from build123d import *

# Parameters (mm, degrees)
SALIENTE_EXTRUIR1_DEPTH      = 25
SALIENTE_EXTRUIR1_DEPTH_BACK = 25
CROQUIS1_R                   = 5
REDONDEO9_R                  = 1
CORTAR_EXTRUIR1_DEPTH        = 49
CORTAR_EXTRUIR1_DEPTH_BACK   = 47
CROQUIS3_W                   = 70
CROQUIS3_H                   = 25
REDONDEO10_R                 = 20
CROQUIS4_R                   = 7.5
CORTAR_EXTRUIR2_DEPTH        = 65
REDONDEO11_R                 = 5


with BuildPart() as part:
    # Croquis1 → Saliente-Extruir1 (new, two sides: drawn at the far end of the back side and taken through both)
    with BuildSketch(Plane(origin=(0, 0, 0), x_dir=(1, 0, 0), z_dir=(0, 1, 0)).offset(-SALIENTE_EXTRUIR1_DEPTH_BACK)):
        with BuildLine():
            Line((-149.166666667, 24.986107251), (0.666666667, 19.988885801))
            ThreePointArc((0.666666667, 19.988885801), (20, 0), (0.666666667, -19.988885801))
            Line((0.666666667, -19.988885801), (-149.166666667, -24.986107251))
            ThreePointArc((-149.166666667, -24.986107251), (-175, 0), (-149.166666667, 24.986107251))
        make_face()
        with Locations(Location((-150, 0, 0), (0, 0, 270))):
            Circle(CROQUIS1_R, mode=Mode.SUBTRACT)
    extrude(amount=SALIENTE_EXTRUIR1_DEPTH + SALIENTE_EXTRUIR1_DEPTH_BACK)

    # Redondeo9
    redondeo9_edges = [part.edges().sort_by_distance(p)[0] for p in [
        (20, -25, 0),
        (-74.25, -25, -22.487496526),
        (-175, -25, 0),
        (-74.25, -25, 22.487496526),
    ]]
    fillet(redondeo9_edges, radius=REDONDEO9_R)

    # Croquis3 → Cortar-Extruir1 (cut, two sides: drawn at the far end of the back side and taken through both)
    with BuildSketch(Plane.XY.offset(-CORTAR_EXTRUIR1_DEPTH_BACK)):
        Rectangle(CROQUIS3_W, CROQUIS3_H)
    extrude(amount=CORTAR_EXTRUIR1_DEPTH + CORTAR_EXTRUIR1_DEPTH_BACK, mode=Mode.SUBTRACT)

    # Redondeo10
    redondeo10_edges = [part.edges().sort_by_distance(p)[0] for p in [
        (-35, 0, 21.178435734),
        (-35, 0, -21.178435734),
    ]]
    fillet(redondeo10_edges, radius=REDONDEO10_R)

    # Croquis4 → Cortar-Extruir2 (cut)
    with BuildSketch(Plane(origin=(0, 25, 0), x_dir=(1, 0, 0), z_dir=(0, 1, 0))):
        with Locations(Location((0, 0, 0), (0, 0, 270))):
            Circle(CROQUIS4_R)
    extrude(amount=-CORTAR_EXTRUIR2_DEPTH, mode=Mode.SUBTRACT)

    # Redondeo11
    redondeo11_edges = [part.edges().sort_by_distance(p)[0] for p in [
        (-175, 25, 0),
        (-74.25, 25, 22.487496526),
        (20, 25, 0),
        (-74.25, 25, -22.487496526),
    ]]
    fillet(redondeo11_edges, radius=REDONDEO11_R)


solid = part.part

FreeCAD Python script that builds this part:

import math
import FreeCAD as App
import Part
import Sketcher


def edges_at(feature, points):
    """Names of the edges that pass closest to the given points."""
    edges = feature.Shape.Edges
    near = lambda p: min(range(len(edges)), key=lambda i: edges[i].distToShape(Part.Vertex(*p))[0])
    return sorted({f"Edge{near(p) + 1}" for p in points})


def add_polygon(sketch, points):
    """Adds a closed chain of lines whose ends are joined by coincident constraints."""
    first, n = sketch.GeometryCount, len(points)
    for a, b in zip(points, points[1:] + points[:1]):
        sketch.addGeometry(Part.LineSegment(App.Vector(*a, 0), App.Vector(*b, 0)), False)
    for i in range(n):
        sketch.addConstraint(Sketcher.Constraint("Coincident", first + i, 2, first + (i + 1) % n, 1))

doc = App.newDocument("Part")
body = doc.addObject("PartDesign::Body", "Body")

# Sketch on XZ plane
sketch1 = doc.addObject("Sketcher::SketchObject", "Sketch")
body.addObject(sketch1)
sketch1.AttachmentSupport = (doc.XZ_Plane, [""])
sketch1.MapMode = "FlatFace"
sketch1.addGeometry([
    Part.LineSegment(App.Vector(1, -20, 0), App.Vector(-149, -25, 0)),  # 0
    Part.ArcOfCircle(Part.Circle(App.Vector(-150, 0, 0), App.Vector(0, 0, 1), 25), math.radians(88), math.radians(272)),  # 1
    Part.LineSegment(App.Vector(-149, 25, 0), App.Vector(1, 20, 0)),  # 2
    Part.ArcOfCircle(Part.Circle(App.Vector(0, 0, 0), App.Vector(0, 0, 1), 20), math.radians(-88), math.radians(88)),  # 3
    Part.Circle(App.Vector(-150, 0, 0), App.Vector(0, 0, 1), 5),  # 4
], False)
sketch1.addConstraint([
    Sketcher.Constraint("Tangent", 0, 2, 1, 2),
    Sketcher.Constraint("Tangent", 1, 1, 2, 1),
    Sketcher.Constraint("Tangent", 2, 2, 3, 2),
    Sketcher.Constraint("Tangent", 3, 1, 0, 1),
    Sketcher.Constraint("Coincident", 3, 3, -1, 1),
    Sketcher.Constraint("Coincident", 4, 3, 1, 3),
    Sketcher.Constraint("PointOnObject", 1, 3, -1),
    Sketcher.Constraint("Diameter", 4, 10.0),
    Sketcher.Constraint("Radius", 1, 25.0),
    Sketcher.Constraint("Radius", 3, 20.0),
    Sketcher.Constraint("DistanceX", 1, 3, -1, 1, 150.0),
])
pad1 = doc.addObject("PartDesign::Pad", "Pad")
body.addObject(pad1)
pad1.Profile = sketch1
pad1.Type = "TwoLengths"
pad1.Length = 25
pad1.Length2 = 25
pad1.Reversed = True
doc.recompute()

fillet = doc.addObject("PartDesign::Fillet", "Fillet")
body.addObject(fillet)
fillet.Base = (pad1, edges_at(pad1, [
    (20, -25, 0),
    (-74.25, -25, -22.487),
    (-175, -25, 0),
    (-74.25, -25, 22.487),
]))
fillet.Radius = 1

# Sketch on XY plane
sketch2 = doc.addObject("Sketcher::SketchObject", "Sketch001")
body.addObject(sketch2)
sketch2.AttachmentSupport = (doc.XY_Plane, [""])
sketch2.MapMode = "FlatFace"
add_polygon(sketch2, [(-35, 12), (-35, -12), (35, -12), (35, 12)])  # lines 0-3
sketch2.addConstraint([
    Sketcher.Constraint("Vertical", 0),
    Sketcher.Constraint("Horizontal", 1),
    Sketcher.Constraint("Vertical", 2),
    Sketcher.Constraint("Horizontal", 3),
    Sketcher.Constraint("Symmetric", 0, 2, 2, 2, -1, 1),
    Sketcher.Constraint("DistanceX", 1, 1, 1, 2, 70.0),
    Sketcher.Constraint("DistanceY", 0, 2, 0, 1, 25.0),
])
pocket1 = doc.addObject("PartDesign::Pocket", "Pocket")
body.addObject(pocket1)
pocket1.Profile = sketch2
pocket1.Type = "ThroughAll"
pocket1.Midplane = True
doc.recompute()

fillet2 = doc.addObject("PartDesign::Fillet", "Fillet001")
body.addObject(fillet2)
fillet2.Base = (pocket1, edges_at(pocket1, [(-35, 0, 21.178), (-35, 0, -21.178)]))
fillet2.Radius = 20

# Sketch on XZ plane
sketch3 = doc.addObject("Sketcher::SketchObject", "Sketch002")
body.addObject(sketch3)
sketch3.AttachmentSupport = (doc.XZ_Plane, [""])
sketch3.MapMode = "FlatFace"
sketch3.AttachmentOffset = App.Placement(App.Vector(0, 0, -25), App.Rotation())
sketch3.addGeometry(Part.Circle(App.Vector(0, 0, 0), App.Vector(0, 0, 1), 8), False)
sketch3.addConstraint([
    Sketcher.Constraint("Coincident", 0, 3, -1, 1),
    Sketcher.Constraint("Diameter", 0, 15.0),
])
pocket2 = doc.addObject("PartDesign::Pocket", "Pocket001")
body.addObject(pocket2)
pocket2.Profile = sketch3
pocket2.Length = 65
pocket2.Reversed = True
doc.recompute()

fillet3 = doc.addObject("PartDesign::Fillet", "Fillet002")
body.addObject(fillet3)
fillet3.Base = (pocket2, edges_at(pocket2, [
    (-175, 25, 0),
    (-74.25, 25, 22.487),
    (20, 25, 0),
    (-74.25, 25, -22.487),
]))
fillet3.Radius = 5

doc.recompute()
